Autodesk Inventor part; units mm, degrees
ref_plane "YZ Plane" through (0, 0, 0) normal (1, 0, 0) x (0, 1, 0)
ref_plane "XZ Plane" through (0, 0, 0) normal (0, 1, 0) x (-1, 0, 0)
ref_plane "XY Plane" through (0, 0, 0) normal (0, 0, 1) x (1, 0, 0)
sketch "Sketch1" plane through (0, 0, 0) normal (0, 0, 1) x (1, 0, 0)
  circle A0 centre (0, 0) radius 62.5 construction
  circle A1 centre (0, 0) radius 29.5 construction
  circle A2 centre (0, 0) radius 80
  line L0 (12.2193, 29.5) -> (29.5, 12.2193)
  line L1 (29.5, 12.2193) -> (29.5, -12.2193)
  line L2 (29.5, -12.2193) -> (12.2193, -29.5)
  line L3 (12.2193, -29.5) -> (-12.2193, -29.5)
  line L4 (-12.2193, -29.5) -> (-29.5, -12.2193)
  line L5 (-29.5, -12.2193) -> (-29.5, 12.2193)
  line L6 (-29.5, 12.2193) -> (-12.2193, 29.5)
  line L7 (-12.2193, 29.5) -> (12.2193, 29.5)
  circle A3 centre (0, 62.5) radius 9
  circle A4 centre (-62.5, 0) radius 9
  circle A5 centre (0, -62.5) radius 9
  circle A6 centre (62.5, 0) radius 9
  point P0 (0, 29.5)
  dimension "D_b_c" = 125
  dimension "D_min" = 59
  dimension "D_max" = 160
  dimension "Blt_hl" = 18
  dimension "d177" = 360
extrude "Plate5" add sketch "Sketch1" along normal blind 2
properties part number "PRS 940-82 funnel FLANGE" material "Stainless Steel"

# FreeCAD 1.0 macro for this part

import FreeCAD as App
import Part
import Sketcher
from FreeCAD import Vector
Q = App.Units.Quantity


def add_polygon(sketch, points):
    """Adds a closed chain of lines whose ends are joined by coincident constraints."""
    first, n = sketch.GeometryCount, len(points)
    for a, b in zip(points, points[1:] + points[:1]):
        sketch.addGeometry(Part.LineSegment(App.Vector(*a, 0), App.Vector(*b, 0)), False)
    for i in range(n):
        sketch.addConstraint(Sketcher.Constraint("Coincident", first + i, 2, first + (i + 1) % n, 1))

doc = App.newDocument("Part")
params = doc.addObject("Spreadsheet::Sheet", "Params")
for row, (alias, value) in enumerate([
    ("sketch1_diameter", "160 mm"),
    ("sketch1_diameter2", "18 mm"),
    ("pad1_length", "2 mm"),
], start=1):
    params.set(f"A{row}", alias)
    params.set(f"B{row}", "=" + value)
    params.setAlias(f"B{row}", alias)

body = doc.addObject("PartDesign::Body", "Body")

# Sketch on XY plane
sketch1 = body.newObject("Sketcher::SketchObject", "Sketch")
sketch1.AttachmentSupport = (doc.getObject("XY_Plane"), [""])
sketch1.MapMode = "FlatFace"
sketch1.addGeometry(Part.Circle(Vector(0, 0, 0), Vector(0, 0, 1), 80), False)  # 0
sketch1.addGeometry(Part.Circle(Vector(0, -62.5, 0), Vector(0, 0, 1), 9), False)  # 1
sketch1.addGeometry(Part.Circle(Vector(-62.5, 0, 0), Vector(0, 0, 1), 9), False)  # 2
add_polygon(sketch1, [(-12.2193, 29.5), (12.2193, 29.5), (29.5, 12.2193), (29.5, -12.2193), (12.2193, -29.5), (-12.2193, -29.5), (-29.5, -12.2193), (-29.5, 12.2193)])  # lines 3-10
sketch1.addGeometry(Part.Circle(Vector(62.5, 0, 0), Vector(0, 0, 1), 9), False)  # 11
sketch1.addGeometry(Part.Circle(Vector(0, 62.5, 0), Vector(0, 0, 1), 9), False)  # 12
sketch1.addConstraint(Sketcher.Constraint("Horizontal", 3))
sketch1.addConstraint(Sketcher.Constraint("Vertical", 5))
sketch1.addConstraint(Sketcher.Constraint("Horizontal", 7))
sketch1.addConstraint(Sketcher.Constraint("Vertical", 9))
sketch1.addConstraint(Sketcher.Constraint("Coincident", 0, 3, -1, 1))
sketch1.addConstraint(Sketcher.Constraint("Equal", 1, 2))
sketch1.addConstraint(Sketcher.Constraint("Equal", 2, 11))
sketch1.addConstraint(Sketcher.Constraint("Equal", 11, 12))
sketch1.addConstraint(Sketcher.Constraint("Symmetric", 2, 3, 11, 3, -1, 1))
sketch1.addConstraint(Sketcher.Constraint("Symmetric", 1, 3, 12, 3, -1, 1))
sketch1.addConstraint(Sketcher.Constraint("Symmetric", 3, 2, 7, 2, -1, 1))
sketch1.addConstraint(Sketcher.Constraint("Symmetric", 4, 2, 8, 2, -1, 1))
sketch1.addConstraint(Sketcher.Constraint("PointOnObject", 1, 3, -2))
sketch1.addConstraint(Sketcher.Constraint("PointOnObject", 2, 3, -1))
sketch1.addConstraint(Sketcher.Constraint("Perpendicular", 4, 6))
sketch1.addConstraint(Sketcher.Constraint("Perpendicular", 8, 10))
sketch1.addConstraint(Sketcher.Constraint("Horizontal", 5, 2, 8, 2))
sketch1.addConstraint(Sketcher.Constraint("Horizontal", 4, 2, 9, 2))
sketch1.addConstraint(Sketcher.Constraint("Vertical", 3, 2, 6, 2))
sketch1.addConstraint(Sketcher.Constraint("Equal", 7, 5))
sketch1.addConstraint(Sketcher.Constraint("Diameter", 0, Q("160 mm")))
sketch1.addConstraint(Sketcher.Constraint("Diameter", 1, Q("18 mm")))
sketch1.addConstraint(Sketcher.Constraint("DistanceX", 2, 3, 11, 3, Q("125 mm")))
sketch1.addConstraint(Sketcher.Constraint("DistanceY", 1, 3, 12, 3, Q("125 mm")))
sketch1.addConstraint(Sketcher.Constraint("DistanceY", 3, 2, 12, 3, Q("33 mm")))
sketch1.addConstraint(Sketcher.Constraint("DistanceX", 3, 1, 3, 2, Q("24.4386 mm")))
sketch1.setExpression("Constraints[28]", "Params.sketch1_diameter")
sketch1.setExpression("Constraints[29]", "Params.sketch1_diameter2")
pad1 = body.newObject("PartDesign::Pad", "Pad")
pad1.Profile = sketch1
pad1.setExpression("Length", "Params.pad1_length")

doc.recompute()
